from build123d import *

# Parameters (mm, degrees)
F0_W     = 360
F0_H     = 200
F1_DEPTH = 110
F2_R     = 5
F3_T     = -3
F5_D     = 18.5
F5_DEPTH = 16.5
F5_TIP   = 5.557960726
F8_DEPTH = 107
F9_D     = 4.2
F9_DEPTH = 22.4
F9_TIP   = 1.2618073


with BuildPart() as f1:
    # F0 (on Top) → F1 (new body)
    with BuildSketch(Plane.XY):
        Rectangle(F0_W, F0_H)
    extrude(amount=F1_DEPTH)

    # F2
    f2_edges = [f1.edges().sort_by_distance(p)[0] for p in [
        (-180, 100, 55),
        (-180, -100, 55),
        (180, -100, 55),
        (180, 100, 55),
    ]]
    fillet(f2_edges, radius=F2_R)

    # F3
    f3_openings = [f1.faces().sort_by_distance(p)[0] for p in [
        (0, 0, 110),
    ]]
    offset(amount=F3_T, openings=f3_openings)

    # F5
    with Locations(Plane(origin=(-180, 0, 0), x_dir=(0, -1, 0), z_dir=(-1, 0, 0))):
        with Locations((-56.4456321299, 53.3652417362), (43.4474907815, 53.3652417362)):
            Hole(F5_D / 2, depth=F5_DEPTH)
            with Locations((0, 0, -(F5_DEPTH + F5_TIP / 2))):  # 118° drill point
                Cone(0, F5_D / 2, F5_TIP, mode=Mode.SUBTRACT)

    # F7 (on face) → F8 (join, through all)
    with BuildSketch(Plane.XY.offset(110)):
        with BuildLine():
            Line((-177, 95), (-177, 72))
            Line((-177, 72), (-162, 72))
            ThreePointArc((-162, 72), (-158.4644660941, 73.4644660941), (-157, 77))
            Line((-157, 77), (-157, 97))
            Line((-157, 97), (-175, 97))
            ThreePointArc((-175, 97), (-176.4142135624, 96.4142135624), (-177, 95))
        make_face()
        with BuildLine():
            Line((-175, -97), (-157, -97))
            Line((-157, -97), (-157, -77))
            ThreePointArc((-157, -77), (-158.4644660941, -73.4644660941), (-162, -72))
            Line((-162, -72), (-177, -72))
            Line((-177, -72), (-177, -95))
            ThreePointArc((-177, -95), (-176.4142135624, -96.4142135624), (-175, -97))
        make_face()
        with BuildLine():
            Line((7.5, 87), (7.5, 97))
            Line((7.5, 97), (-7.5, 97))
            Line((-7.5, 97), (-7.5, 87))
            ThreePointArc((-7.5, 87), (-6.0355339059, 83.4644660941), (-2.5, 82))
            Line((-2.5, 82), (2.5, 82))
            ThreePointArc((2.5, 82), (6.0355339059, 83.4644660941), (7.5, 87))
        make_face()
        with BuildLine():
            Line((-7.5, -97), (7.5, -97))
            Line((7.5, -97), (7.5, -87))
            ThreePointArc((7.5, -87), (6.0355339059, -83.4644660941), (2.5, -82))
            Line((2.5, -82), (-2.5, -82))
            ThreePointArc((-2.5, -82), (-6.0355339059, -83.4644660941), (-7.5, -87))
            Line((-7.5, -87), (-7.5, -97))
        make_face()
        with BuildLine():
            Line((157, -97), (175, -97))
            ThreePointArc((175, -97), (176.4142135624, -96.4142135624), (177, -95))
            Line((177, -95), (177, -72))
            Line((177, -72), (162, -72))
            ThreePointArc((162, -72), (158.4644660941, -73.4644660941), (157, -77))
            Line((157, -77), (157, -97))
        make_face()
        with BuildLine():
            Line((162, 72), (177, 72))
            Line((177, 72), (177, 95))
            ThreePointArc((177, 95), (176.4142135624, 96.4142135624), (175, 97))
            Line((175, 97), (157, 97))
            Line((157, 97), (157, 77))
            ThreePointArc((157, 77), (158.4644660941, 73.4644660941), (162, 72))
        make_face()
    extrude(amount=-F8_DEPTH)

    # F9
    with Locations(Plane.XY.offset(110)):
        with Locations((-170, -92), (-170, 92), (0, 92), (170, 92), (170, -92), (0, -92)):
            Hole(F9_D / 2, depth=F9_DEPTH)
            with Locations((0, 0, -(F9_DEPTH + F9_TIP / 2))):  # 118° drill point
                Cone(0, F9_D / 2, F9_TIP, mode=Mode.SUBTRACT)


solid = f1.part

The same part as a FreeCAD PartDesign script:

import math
import FreeCAD as App
import Part
import Sketcher
Q = App.Units.Quantity


def edges_at(feature, points):
    """Names of the edges that pass closest to the given points."""
    edges = feature.Shape.Edges
    near = lambda p: min(range(len(edges)), key=lambda i: edges[i].distToShape(Part.Vertex(*p))[0])
    return sorted({f"Edge{near(p) + 1}" for p in points})


def faces_at(feature, points):
    """Names of the faces that lie closest to the given points."""
    faces = feature.Shape.Faces
    near = lambda p: min(range(len(faces)), key=lambda i: faces[i].distToShape(Part.Vertex(*p))[0])
    return sorted({f"Face{near(p) + 1}" for p in points})


def add_polygon(sketch, points):
    """Adds a closed chain of lines whose ends are joined by coincident constraints."""
    first, n = sketch.GeometryCount, len(points)
    for a, b in zip(points, points[1:] + points[:1]):
        sketch.addGeometry(Part.LineSegment(App.Vector(*a, 0), App.Vector(*b, 0)), False)
    for i in range(n):
        sketch.addConstraint(Sketcher.Constraint("Coincident", first + i, 2, first + (i + 1) % n, 1))

doc = App.newDocument("Part")
body = doc.addObject("PartDesign::Body", "Body")

# Sketch on XY plane
sketch1 = body.newObject("Sketcher::SketchObject", "Sketch")
sketch1.AttachmentSupport = (doc.getObject("XY_Plane"), [""])
sketch1.MapMode = "FlatFace"
add_polygon(sketch1, [(-180, 100), (-180, -100), (180, -100), (180, 100)])  # lines 0-3
sketch1.addConstraint(Sketcher.Constraint("Vertical", 0))
sketch1.addConstraint(Sketcher.Constraint("Horizontal", 1))
sketch1.addConstraint(Sketcher.Constraint("Vertical", 2))
sketch1.addConstraint(Sketcher.Constraint("Horizontal", 3))
sketch1.addConstraint(Sketcher.Constraint("Symmetric", 0, 2, 2, 2, -1, 1))
sketch1.addConstraint(Sketcher.Constraint("DistanceX", 1, 1, 1, 2, Q("360 mm")))
sketch1.addConstraint(Sketcher.Constraint("DistanceY", 0, 2, 0, 1, Q("200 mm")))
pad1 = body.newObject("PartDesign::Pad", "Pad")
pad1.Profile = sketch1
pad1.Length = 110
doc.recompute()

fillet = body.newObject("PartDesign::Fillet", "Fillet")
fillet.Base = (pad1, edges_at(pad1, [
    (-180, 100, 55),
    (-180, -100, 55),
    (180, -100, 55),
    (180, 100, 55),
]))
fillet.Radius = 5
doc.recompute()

thickness = body.newObject("PartDesign::Thickness", "Thickness")
thickness.Base = (fillet, faces_at(fillet, [(0, 0, 110)]))
thickness.Value = 3
thickness.Reversed = True
thickness.Join = "Arc"

# Sketch on YZ plane
sketch2 = body.newObject("Sketcher::SketchObject", "Sketch001")
sketch2.AttachmentSupport = (doc.getObject("YZ_Plane"), [""])
sketch2.MapMode = "FlatFace"
sketch2.AttachmentOffset = App.Placement(App.Vector(0, 0, -180), App.Rotation())
sketch2.addGeometry(Part.Circle(App.Vector(56, 53, 0), App.Vector(0, 0, 1), 9), False)
sketch2.addGeometry(Part.Circle(App.Vector(-43, 53, 0), App.Vector(0, 0, 1), 9), False)
sketch2.addConstraint(Sketcher.Constraint("Equal", 0, 1))
sketch2.addConstraint(Sketcher.Constraint("Horizontal", 0, 3, 1, 3))
sketch2.addConstraint(Sketcher.Constraint("Diameter", 0, Q("18.5 mm")))
sketch2.addConstraint(Sketcher.Constraint("DistanceY", -1, 1, 0, 3, Q("53.365242 mm")))
sketch2.addConstraint(Sketcher.Constraint("DistanceX", 1, 3, -1, 1, Q("43.447491 mm")))
sketch2.addConstraint(Sketcher.Constraint("DistanceX", -1, 1, 0, 3, Q("56.445632 mm")))
doc.recompute()
hole = body.newObject("PartDesign::Hole", "Hole")
hole.Profile = sketch2
hole.ThreadType = "None"
hole.Diameter = 18.5
hole.DepthType = "Dimension"
hole.Depth = 16.5
hole.DrillPoint = "Angled"
hole.DrillPointAngle = 118
hole.Reversed = True

# Sketch on XY plane
sketch3 = body.newObject("Sketcher::SketchObject", "Sketch002")
sketch3.AttachmentSupport = (doc.getObject("XY_Plane"), [""])
sketch3.MapMode = "FlatFace"
sketch3.AttachmentOffset = App.Placement(App.Vector(0, 0, 110), App.Rotation())
sketch3.addGeometry(Part.LineSegment(App.Vector(-177, 95, 0), App.Vector(-177, 72, 0)), False)
sketch3.addGeometry(Part.LineSegment(App.Vector(-177, 72, 0), App.Vector(-162, 72, 0)), False)
sketch3.addGeometry(Part.ArcOfCircle(Part.Circle(App.Vector(-162, 77, 0), App.Vector(0, 0, 1), 5), math.radians(-90), math.radians(0)), False)
sketch3.addGeometry(Part.LineSegment(App.Vector(-157, 77, 0), App.Vector(-157, 97, 0)), False)
sketch3.addGeometry(Part.LineSegment(App.Vector(-157, 97, 0), App.Vector(-175, 97, 0)), False)
sketch3.addGeometry(Part.ArcOfCircle(Part.Circle(App.Vector(-175, 95, 0), App.Vector(0, 0, 1), 2), math.radians(90), math.radians(180)), False)
sketch3.addGeometry(Part.LineSegment(App.Vector(-175, -97, 0), App.Vector(-157, -97, 0)), False)
sketch3.addGeometry(Part.LineSegment(App.Vector(-157, -97, 0), App.Vector(-157, -77, 0)), False)
sketch3.addGeometry(Part.ArcOfCircle(Part.Circle(App.Vector(-162, -77, 0), App.Vector(0, 0, 1), 5), math.radians(0), math.radians(90)), False)
sketch3.addGeometry(Part.LineSegment(App.Vector(-162, -72, 0), App.Vector(-177, -72, 0)), False)
sketch3.addGeometry(Part.LineSegment(App.Vector(-177, -72, 0), App.Vector(-177, -95, 0)), False)
sketch3.addGeometry(Part.ArcOfCircle(Part.Circle(App.Vector(-175, -95, 0), App.Vector(0, 0, 1), 2), math.radians(180), math.radians(270)), False)
sketch3.addGeometry(Part.LineSegment(App.Vector(7.5, 87, 0), App.Vector(7.5, 97, 0)), False)
sketch3.addGeometry(Part.LineSegment(App.Vector(7.5, 97, 0), App.Vector(-7.5, 97, 0)), False)
sketch3.addGeometry(Part.LineSegment(App.Vector(-7.5, 97, 0), App.Vector(-7.5, 87, 0)), False)
sketch3.addGeometry(Part.ArcOfCircle(Part.Circle(App.Vector(-2.5, 87, 0), App.Vector(0, 0, 1), 5), math.radians(180), math.radians(270)), False)
sketch3.addGeometry(Part.LineSegment(App.Vector(-2.5, 82, 0), App.Vector(2.5, 82, 0)), False)
sketch3.addGeometry(Part.ArcOfCircle(Part.Circle(App.Vector(2.5, 87, 0), App.Vector(0, 0, 1), 5), math.radians(-90), math.radians(0)), False)
sketch3.addGeometry(Part.LineSegment(App.Vector(-7.5, -97, 0), App.Vector(7.5, -97, 0)), False)
sketch3.addGeometry(Part.LineSegment(App.Vector(7.5, -97, 0), App.Vector(7.5, -87, 0)), False)
sketch3.addGeometry(Part.ArcOfCircle(Part.Circle(App.Vector(2.5, -87, 0), App.Vector(0, 0, 1), 5), math.radians(0), math.radians(90)), False)
sketch3.addGeometry(Part.LineSegment(App.Vector(2.5, -82, 0), App.Vector(-2.5, -82, 0)), False)
sketch3.addGeometry(Part.ArcOfCircle(Part.Circle(App.Vector(-2.5, -87, 0), App.Vector(0, 0, 1), 5), math.radians(90), math.radians(180)), False)
sketch3.addGeometry(Part.LineSegment(App.Vector(-7.5, -87, 0), App.Vector(-7.5, -97, 0)), False)
sketch3.addGeometry(Part.LineSegment(App.Vector(157, -97, 0), App.Vector(175, -97, 0)), False)
sketch3.addGeometry(Part.ArcOfCircle(Part.Circle(App.Vector(175, -95, 0), App.Vector(0, 0, 1), 2), math.radians(-90), math.radians(0)), False)
sketch3.addGeometry(Part.LineSegment(App.Vector(177, -95, 0), App.Vector(177, -72, 0)), False)
sketch3.addGeometry(Part.LineSegment(App.Vector(177, -72, 0), App.Vector(162, -72, 0)), False)
sketch3.addGeometry(Part.ArcOfCircle(Part.Circle(App.Vector(162, -77, 0), App.Vector(0, 0, 1), 5), math.radians(90), math.radians(180)), False)
sketch3.addGeometry(Part.LineSegment(App.Vector(157, -77, 0), App.Vector(157, -97, 0)), False)
sketch3.addGeometry(Part.LineSegment(App.Vector(162, 72, 0), App.Vector(177, 72, 0)), False)
sketch3.addGeometry(Part.LineSegment(App.Vector(177, 72, 0), App.Vector(177, 95, 0)), False)
sketch3.addGeometry(Part.ArcOfCircle(Part.Circle(App.Vector(175, 95, 0), App.Vector(0, 0, 1), 2), math.radians(0), math.radians(90)), False)
sketch3.addGeometry(Part.LineSegment(App.Vector(175, 97, 0), App.Vector(157, 97, 0)), False)
sketch3.addGeometry(Part.LineSegment(App.Vector(157, 97, 0), App.Vector(157, 77, 0)), False)
sketch3.addGeometry(Part.ArcOfCircle(Part.Circle(App.Vector(162, 77, 0), App.Vector(0, 0, 1), 5), math.radians(180), math.radians(270)), False)
sketch3.addConstraint(Sketcher.Constraint("Coincident", 0, 2, 1, 1))
sketch3.addConstraint(Sketcher.Constraint("Tangent", 1, 2, 2, 1))
sketch3.addConstraint(Sketcher.Constraint("Tangent", 2, 2, 3, 1))
sketch3.addConstraint(Sketcher.Constraint("Coincident", 3, 2, 4, 1))
sketch3.addConstraint(Sketcher.Constraint("Tangent", 4, 2, 5, 1))
sketch3.addConstraint(Sketcher.Constraint("Tangent", 5, 2, 0, 1))
sketch3.addConstraint(Sketcher.Constraint("Coincident", 6, 2, 7, 1))
sketch3.addConstraint(Sketcher.Constraint("Tangent", 7, 2, 8, 1))
sketch3.addConstraint(Sketcher.Constraint("Tangent", 8, 2, 9, 1))
sketch3.addConstraint(Sketcher.Constraint("Coincident", 9, 2, 10, 1))
sketch3.addConstraint(Sketcher.Constraint("Tangent", 10, 2, 11, 1))
sketch3.addConstraint(Sketcher.Constraint("Tangent", 11, 2, 6, 1))
sketch3.addConstraint(Sketcher.Constraint("Coincident", 12, 2, 13, 1))
sketch3.addConstraint(Sketcher.Constraint("Coincident", 13, 2, 14, 1))
sketch3.addConstraint(Sketcher.Constraint("Tangent", 14, 2, 15, 1))
sketch3.addConstraint(Sketcher.Constraint("Tangent", 15, 2, 16, 1))
sketch3.addConstraint(Sketcher.Constraint("Tangent", 16, 2, 17, 1))
sketch3.addConstraint(Sketcher.Constraint("Tangent", 17, 2, 12, 1))
sketch3.addConstraint(Sketcher.Constraint("Coincident", 18, 2, 19, 1))
sketch3.addConstraint(Sketcher.Constraint("Tangent", 19, 2, 20, 1))
sketch3.addConstraint(Sketcher.Constraint("Tangent", 20, 2, 21, 1))
sketch3.addConstraint(Sketcher.Constraint("Tangent", 21, 2, 22, 1))
sketch3.addConstraint(Sketcher.Constraint("Tangent", 22, 2, 23, 1))
sketch3.addConstraint(Sketcher.Constraint("Coincident", 23, 2, 18, 1))
sketch3.addConstraint(Sketcher.Constraint("Tangent", 24, 2, 25, 1))
sketch3.addConstraint(Sketcher.Constraint("Tangent", 25, 2, 26, 1))
sketch3.addConstraint(Sketcher.Constraint("Coincident", 26, 2, 27, 1))
sketch3.addConstraint(Sketcher.Constraint("Tangent", 27, 2, 28, 1))
sketch3.addConstraint(Sketcher.Constraint("Tangent", 28, 2, 29, 1))
sketch3.addConstraint(Sketcher.Constraint("Coincident", 29, 2, 24, 1))
sketch3.addConstraint(Sketcher.Constraint("Coincident", 30, 2, 31, 1))
sketch3.addConstraint(Sketcher.Constraint("Tangent", 31, 2, 32, 1))
sketch3.addConstraint(Sketcher.Constraint("Tangent", 32, 2, 33, 1))
sketch3.addConstraint(Sketcher.Constraint("Coincident", 33, 2, 34, 1))
sketch3.addConstraint(Sketcher.Constraint("Tangent", 34, 2, 35, 1))
sketch3.addConstraint(Sketcher.Constraint("Tangent", 35, 2, 30, 1))
sketch3.addConstraint(Sketcher.Constraint("Vertical", 0))
sketch3.addConstraint(Sketcher.Constraint("Horizontal", 1))
sketch3.addConstraint(Sketcher.Constraint("Vertical", 3))
sketch3.addConstraint(Sketcher.Constraint("Horizontal", 4))
sketch3.addConstraint(Sketcher.Constraint("Horizontal", 6))
sketch3.addConstraint(Sketcher.Constraint("Vertical", 7))
sketch3.addConstraint(Sketcher.Constraint("Horizontal", 9))
sketch3.addConstraint(Sketcher.Constraint("Vertical", 10))
sketch3.addConstraint(Sketcher.Constraint("Vertical", 12))
sketch3.addConstraint(Sketcher.Constraint("Horizontal", 13))
sketch3.addConstraint(Sketcher.Constraint("Vertical", 14))
sketch3.addConstraint(Sketcher.Constraint("Horizontal", 16))
sketch3.addConstraint(Sketcher.Constraint("Horizontal", 18))
sketch3.addConstraint(Sketcher.Constraint("Vertical", 19))
sketch3.addConstraint(Sketcher.Constraint("Horizontal", 21))
sketch3.addConstraint(Sketcher.Constraint("Vertical", 23))
sketch3.addConstraint(Sketcher.Constraint("Horizontal", 24))
sketch3.addConstraint(Sketcher.Constraint("Vertical", 26))
sketch3.addConstraint(Sketcher.Constraint("Horizontal", 27))
sketch3.addConstraint(Sketcher.Constraint("Vertical", 29))
sketch3.addConstraint(Sketcher.Constraint("Horizontal", 30))
sketch3.addConstraint(Sketcher.Constraint("Vertical", 31))
sketch3.addConstraint(Sketcher.Constraint("Horizontal", 33))
sketch3.addConstraint(Sketcher.Constraint("Vertical", 34))
sketch3.addConstraint(Sketcher.Constraint("Equal", 2, 8))
sketch3.addConstraint(Sketcher.Constraint("Equal", 5, 11))
sketch3.addConstraint(Sketcher.Constraint("Equal", 8, 15))
sketch3.addConstraint(Sketcher.Constraint("Equal", 15, 17))
sketch3.addConstraint(Sketcher.Constraint("Equal", 17, 20))
sketch3.addConstraint(Sketcher.Constraint("Equal", 20, 22))
sketch3.addConstraint(Sketcher.Constraint("Equal", 11, 25))
sketch3.addConstraint(Sketcher.Constraint("Equal", 22, 28))
sketch3.addConstraint(Sketcher.Constraint("Equal", 25, 32))
sketch3.addConstraint(Sketcher.Constraint("Equal", 28, 35))
sketch3.addConstraint(Sketcher.Constraint("Symmetric", 15, 3, 20, 3, -1, 1))
sketch3.addConstraint(Sketcher.Constraint("Symmetric", 5, 3, 25, 3, -1, 1))
sketch3.addConstraint(Sketcher.Constraint("Symmetric", 2, 3, 28, 3, -1, 1))
sketch3.addConstraint(Sketcher.Constraint("Symmetric", 11, 3, 32, 3, -1, 1))
sketch3.addConstraint(Sketcher.Constraint("Symmetric", 8, 3, 35, 3, -1, 1))
sketch3.addConstraint(Sketcher.Constraint("Symmetric", 12, 2, 23, 2, -1, 1))
sketch3.addConstraint(Sketcher.Constraint("Symmetric", 11, 3, 25, 3, -2))
sketch3.addConstraint(Sketcher.Constraint("Symmetric", 8, 3, 28, 3, -2))
sketch3.addConstraint(Sketcher.Constraint("Horizontal", 4, 2, 12, 2))
sketch3.addConstraint(Sketcher.Constraint("Vertical", 17, 3, 20, 3))
sketch3.addConstraint(Sketcher.Constraint("Equal", 9, 13))
sketch3.addConstraint(Sketcher.Constraint("Radius", 2, Q("5 mm")))
sketch3.addConstraint(Sketcher.Constraint("Radius", 5, Q("2 mm")))
sketch3.addConstraint(Sketcher.Constraint("DistanceX", 1, 1, 1, 2, Q("15 mm")))
sketch3.addConstraint(Sketcher.Constraint("DistanceY", 0, 2, 0, 1, Q("23 mm")))
sketch3.addConstraint(Sketcher.Constraint("DistanceY", 12, 1, 12, 2, Q("10 mm")))
sketch3.addConstraint(Sketcher.Constraint("DistanceX", 2, 3, -1, 1, Q("162 mm")))
sketch3.addConstraint(Sketcher.Constraint("DistanceY", -1, 1, 2, 3, Q("77 mm")))
pad2 = body.newObject("PartDesign::Pad", "Pad001")
pad2.Profile = sketch3
pad2.Type = "UpToLast"
pad2.Reversed = True

# Sketch on XY plane
sketch4 = body.newObject("Sketcher::SketchObject", "Sketch003")
sketch4.AttachmentSupport = (doc.getObject("XY_Plane"), [""])
sketch4.MapMode = "FlatFace"
sketch4.AttachmentOffset = App.Placement(App.Vector(0, 0, 110), App.Rotation())
sketch4.addGeometry(Part.Circle(App.Vector(-170, -92, 0), App.Vector(0, 0, 1), 2.1), False)
sketch4.addGeometry(Part.Circle(App.Vector(-170, 92, 0), App.Vector(0, 0, 1), 2.1), False)
sketch4.addGeometry(Part.Circle(App.Vector(0, 92, 0), App.Vector(0, 0, 1), 2.1), False)
sketch4.addGeometry(Part.Circle(App.Vector(170, 92, 0), App.Vector(0, 0, 1), 2.1), False)
sketch4.addGeometry(Part.Circle(App.Vector(170, -92, 0), App.Vector(0, 0, 1), 2.1), False)
sketch4.addGeometry(Part.Circle(App.Vector(0, -92, 0), App.Vector(0, 0, 1), 2.1), False)
sketch4.addConstraint(Sketcher.Constraint("Equal", 0, 1))
sketch4.addConstraint(Sketcher.Constraint("Equal", 1, 2))
sketch4.addConstraint(Sketcher.Constraint("Equal", 2, 3))
sketch4.addConstraint(Sketcher.Constraint("Equal", 3, 4))
sketch4.addConstraint(Sketcher.Constraint("Equal", 4, 5))
sketch4.addConstraint(Sketcher.Constraint("Symmetric", 0, 3, 3, 3, -1, 1))
sketch4.addConstraint(Sketcher.Constraint("Symmetric", 1, 3, 4, 3, -1, 1))
sketch4.addConstraint(Sketcher.Constraint("Symmetric", 2, 3, 5, 3, -1, 1))
sketch4.addConstraint(Sketcher.Constraint("Symmetric", 1, 3, 3, 3, -2))
sketch4.addConstraint(Sketcher.Constraint("PointOnObject", 2, 3, -2))
sketch4.addConstraint(Sketcher.Constraint("Horizontal", 1, 3, 2, 3))
sketch4.addConstraint(Sketcher.Constraint("Diameter", 0, Q("4.2 mm")))
sketch4.addConstraint(Sketcher.Constraint("DistanceX", 0, 3, -1, 1, Q("170 mm")))
sketch4.addConstraint(Sketcher.Constraint("DistanceY", 0, 3, -1, 1, Q("92 mm")))
doc.recompute()
hole2 = body.newObject("PartDesign::Hole", "Hole001")
hole2.Profile = sketch4
hole2.ThreadType = "None"
hole2.Diameter = 4.2
hole2.DepthType = "Dimension"
hole2.Depth = 22.4
hole2.DrillPoint = "Angled"
hole2.DrillPointAngle = 118

doc.recompute()
